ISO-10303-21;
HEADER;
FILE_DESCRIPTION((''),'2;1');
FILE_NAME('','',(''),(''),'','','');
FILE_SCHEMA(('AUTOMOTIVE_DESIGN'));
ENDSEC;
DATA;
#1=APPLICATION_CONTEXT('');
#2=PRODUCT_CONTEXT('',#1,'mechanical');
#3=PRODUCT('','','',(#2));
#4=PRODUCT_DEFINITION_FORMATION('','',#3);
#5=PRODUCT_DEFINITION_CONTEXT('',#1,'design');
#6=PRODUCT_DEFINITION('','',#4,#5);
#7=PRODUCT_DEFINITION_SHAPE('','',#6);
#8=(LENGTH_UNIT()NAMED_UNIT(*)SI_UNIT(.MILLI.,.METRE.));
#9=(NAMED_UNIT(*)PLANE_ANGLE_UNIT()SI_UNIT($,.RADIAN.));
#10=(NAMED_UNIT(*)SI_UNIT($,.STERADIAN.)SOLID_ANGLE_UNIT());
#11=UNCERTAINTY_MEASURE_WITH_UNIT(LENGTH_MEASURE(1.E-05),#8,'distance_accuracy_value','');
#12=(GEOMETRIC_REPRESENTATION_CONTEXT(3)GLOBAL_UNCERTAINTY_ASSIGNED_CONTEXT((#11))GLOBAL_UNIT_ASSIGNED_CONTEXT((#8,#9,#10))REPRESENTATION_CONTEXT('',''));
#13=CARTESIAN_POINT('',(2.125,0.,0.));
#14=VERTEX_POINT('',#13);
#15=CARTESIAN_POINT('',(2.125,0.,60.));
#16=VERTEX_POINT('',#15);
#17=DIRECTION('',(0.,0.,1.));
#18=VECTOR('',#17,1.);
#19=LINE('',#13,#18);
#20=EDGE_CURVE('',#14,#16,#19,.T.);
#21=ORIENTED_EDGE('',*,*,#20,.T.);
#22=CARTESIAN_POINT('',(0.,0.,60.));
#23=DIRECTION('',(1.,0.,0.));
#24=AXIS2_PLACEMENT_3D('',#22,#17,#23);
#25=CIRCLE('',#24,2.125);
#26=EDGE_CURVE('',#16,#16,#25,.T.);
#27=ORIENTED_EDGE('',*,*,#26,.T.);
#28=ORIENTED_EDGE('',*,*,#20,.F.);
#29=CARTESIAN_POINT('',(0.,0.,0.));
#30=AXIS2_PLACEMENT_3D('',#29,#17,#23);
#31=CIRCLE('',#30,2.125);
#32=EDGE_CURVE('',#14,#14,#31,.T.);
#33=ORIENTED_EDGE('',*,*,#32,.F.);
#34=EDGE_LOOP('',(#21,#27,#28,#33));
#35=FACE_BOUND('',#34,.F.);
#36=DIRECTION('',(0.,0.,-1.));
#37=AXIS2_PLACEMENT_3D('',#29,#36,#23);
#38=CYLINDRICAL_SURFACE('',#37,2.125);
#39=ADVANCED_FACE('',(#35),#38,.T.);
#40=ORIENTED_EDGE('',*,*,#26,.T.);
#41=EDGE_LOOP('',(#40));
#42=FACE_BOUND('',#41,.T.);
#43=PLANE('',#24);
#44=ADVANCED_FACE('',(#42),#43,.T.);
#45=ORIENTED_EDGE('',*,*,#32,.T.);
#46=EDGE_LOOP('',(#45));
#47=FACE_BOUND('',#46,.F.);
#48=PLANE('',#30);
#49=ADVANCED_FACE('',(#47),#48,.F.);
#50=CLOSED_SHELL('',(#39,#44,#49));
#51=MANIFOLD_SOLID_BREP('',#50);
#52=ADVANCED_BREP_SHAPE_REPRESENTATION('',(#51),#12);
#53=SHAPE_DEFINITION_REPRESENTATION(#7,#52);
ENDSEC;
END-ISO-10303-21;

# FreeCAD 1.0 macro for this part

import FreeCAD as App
import Part
import Sketcher
from FreeCAD import Vector
Q = App.Units.Quantity

doc = App.newDocument("Part")
body = doc.addObject("PartDesign::Body", "Body")

sketch1 = doc.addObject("Sketcher::SketchObject", "Sketch")
body.addObject(sketch1)
sketch1.AttachmentSupport = (doc.XY_Plane, [""])
sketch1.MapMode = "FlatFace"
sketch1.addGeometry(Part.Circle(Vector(0, 0, 0), Vector(0, 0, 1), 2.1), False)
sketch1.addConstraint([
    Sketcher.Constraint("Coincident", 0, 3, -1, 1),
    Sketcher.Constraint("Diameter", 0, Q("4.25 mm")),
])
pad1 = doc.addObject("PartDesign::Pad", "Pad")
body.addObject(pad1)
pad1.Profile = sketch1
pad1.Length = 60

doc.recompute()
